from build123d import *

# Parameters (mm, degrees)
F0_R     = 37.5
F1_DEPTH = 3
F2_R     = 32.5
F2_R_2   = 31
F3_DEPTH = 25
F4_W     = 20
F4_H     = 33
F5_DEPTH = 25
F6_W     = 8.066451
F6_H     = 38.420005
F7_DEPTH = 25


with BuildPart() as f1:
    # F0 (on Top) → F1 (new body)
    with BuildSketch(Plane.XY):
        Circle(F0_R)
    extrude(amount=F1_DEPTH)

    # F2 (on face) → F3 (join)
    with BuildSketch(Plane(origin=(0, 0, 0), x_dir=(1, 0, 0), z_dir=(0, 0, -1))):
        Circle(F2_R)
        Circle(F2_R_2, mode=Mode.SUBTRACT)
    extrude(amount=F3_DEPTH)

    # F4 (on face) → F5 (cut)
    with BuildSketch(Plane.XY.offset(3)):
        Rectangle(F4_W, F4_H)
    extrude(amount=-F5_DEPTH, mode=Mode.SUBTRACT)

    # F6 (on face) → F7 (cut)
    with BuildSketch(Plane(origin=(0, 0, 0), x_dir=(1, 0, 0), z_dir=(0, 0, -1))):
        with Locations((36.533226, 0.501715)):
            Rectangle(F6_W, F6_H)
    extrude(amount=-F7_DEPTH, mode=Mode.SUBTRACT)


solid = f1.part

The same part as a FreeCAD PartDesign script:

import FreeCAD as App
import Part
import Sketcher

V = App.Vector

doc = App.newDocument("Part")
params = doc.addObject("Spreadsheet::Sheet", "Params")
for row, (alias, value) in enumerate([
    ("sketch1_diameter", "75 mm"),
    ("pad1_length", "3 mm"),
    ("sketch2_diameter", "65 mm"),
    ("sketch2_diameter2", "62 mm"),
    ("pad2_length", "25 mm"),
    ("sketch3_width", "20 mm"),
    ("sketch3_height", "33 mm"),
    ("pocket1_length", "25 mm"),
    ("pocket2_length", "25 mm"),
], start=1):
    params.set(f"A{row}", alias)
    params.set(f"B{row}", "=" + value)
    params.setAlias(f"B{row}", alias)

body = doc.addObject("PartDesign::Body", "Body")

sketch1 = body.newObject("Sketcher::SketchObject", "Sketch")
sketch1.AttachmentSupport = (doc.getObject("XY_Plane"), [""])
sketch1.MapMode = "FlatFace"
sketch1.addGeometry(Part.Circle(V(0, 0, 0), V(0, 0, 1), 38), False)
sketch1.addConstraint([
    Sketcher.Constraint("Coincident", 0, 3, -1, 1),
    Sketcher.Constraint("Diameter", 0, 75.0),
])
sketch1.setExpression("Constraints[1]", "Params.sketch1_diameter")
pad1 = body.newObject("PartDesign::Pad", "Pad")
pad1.Profile = sketch1
pad1.setExpression("Length", "Params.pad1_length")

sketch2 = body.newObject("Sketcher::SketchObject", "Sketch001")
sketch2.AttachmentSupport = (doc.getObject("XY_Plane"), [""])
sketch2.MapMode = "FlatFace"
sketch2.addGeometry([
    Part.Circle(V(0, 0, 0), V(0, 0, 1), 32),
    Part.Circle(V(0, 0, 0), V(0, 0, 1), 31),
], False)
sketch2.addConstraint([
    Sketcher.Constraint("Coincident", 0, 3, -1, 1),
    Sketcher.Constraint("Coincident", 1, 3, -1, 1),
    Sketcher.Constraint("Diameter", 0, 65.0),
    Sketcher.Constraint("Diameter", 1, 62.0),
])
sketch2.setExpression("Constraints[2]", "Params.sketch2_diameter")
sketch2.setExpression("Constraints[3]", "Params.sketch2_diameter2")
pad2 = body.newObject("PartDesign::Pad", "Pad001")
pad2.Profile = sketch2
pad2.setExpression("Length", "Params.pad2_length")
pad2.Reversed = True

sketch3 = body.newObject("Sketcher::SketchObject", "Sketch002")
sketch3.AttachmentSupport = (doc.getObject("XY_Plane"), [""])
sketch3.MapMode = "FlatFace"
sketch3.AttachmentOffset = App.Placement(V(0, 0, 3), App.Rotation())
sketch3.addGeometry([
    Part.LineSegment(V(-10, 16, 0), V(-10, -16, 0)),
    Part.LineSegment(V(-10, -16, 0), V(10, -16, 0)),
    Part.LineSegment(V(10, -16, 0), V(10, 16, 0)),
    Part.LineSegment(V(10, 16, 0), V(-10, 16, 0)),
], False)
sketch3.addConstraint([
    Sketcher.Constraint("Coincident", 0, 2, 1, 1),
    Sketcher.Constraint("Coincident", 1, 2, 2, 1),
    Sketcher.Constraint("Coincident", 2, 2, 3, 1),
    Sketcher.Constraint("Coincident", 3, 2, 0, 1),
    Sketcher.Constraint("Vertical", 0),
    Sketcher.Constraint("Horizontal", 1),
    Sketcher.Constraint("Vertical", 2),
    Sketcher.Constraint("Horizontal", 3),
    Sketcher.Constraint("Symmetric", 0, 2, 2, 2, -1, 1),
    Sketcher.Constraint("DistanceX", 1, 1, 1, 2, 20.0),
    Sketcher.Constraint("DistanceY", 0, 2, 0, 1, 33.0),
])
sketch3.setExpression("Constraints[9]", "Params.sketch3_width")
sketch3.setExpression("Constraints[10]", "Params.sketch3_height")
pocket1 = body.newObject("PartDesign::Pocket", "Pocket")
pocket1.Profile = sketch3
pocket1.setExpression("Length", "Params.pocket1_length")

sketch4 = body.newObject("Sketcher::SketchObject", "Sketch003")
sketch4.AttachmentSupport = (doc.getObject("XY_Plane"), [""])
sketch4.MapMode = "FlatFace"
sketch4.addGeometry([
    Part.LineSegment(V(33, -20, 0), V(33, 19, 0)),
    Part.LineSegment(V(33, 19, 0), V(41, 19, 0)),
    Part.LineSegment(V(41, 19, 0), V(41, -20, 0)),
    Part.LineSegment(V(41, -20, 0), V(33, -20, 0)),
], False)
sketch4.addConstraint([
    Sketcher.Constraint("Coincident", 0, 2, 1, 1),
    Sketcher.Constraint("Coincident", 1, 2, 2, 1),
    Sketcher.Constraint("Coincident", 2, 2, 3, 1),
    Sketcher.Constraint("Coincident", 3, 2, 0, 1),
    Sketcher.Constraint("Vertical", 0),
    Sketcher.Constraint("Horizontal", 1),
    Sketcher.Constraint("Vertical", 2),
    Sketcher.Constraint("Horizontal", 3),
    Sketcher.Constraint("DistanceX", -1, 1, 0, 2, 32.5),
    Sketcher.Constraint("DistanceX", 1, 1, 1, 2, 8.066451),
    Sketcher.Constraint("DistanceY", 0, 1, 0, 2, 38.420005),
    Sketcher.Constraint("DistanceY", -1, 1, 0, 2, 18.708288),
])
pocket2 = body.newObject("PartDesign::Pocket", "Pocket001")
pocket2.Profile = sketch4
pocket2.setExpression("Length", "Params.pocket2_length")
pocket2.Reversed = True

doc.recompute()
